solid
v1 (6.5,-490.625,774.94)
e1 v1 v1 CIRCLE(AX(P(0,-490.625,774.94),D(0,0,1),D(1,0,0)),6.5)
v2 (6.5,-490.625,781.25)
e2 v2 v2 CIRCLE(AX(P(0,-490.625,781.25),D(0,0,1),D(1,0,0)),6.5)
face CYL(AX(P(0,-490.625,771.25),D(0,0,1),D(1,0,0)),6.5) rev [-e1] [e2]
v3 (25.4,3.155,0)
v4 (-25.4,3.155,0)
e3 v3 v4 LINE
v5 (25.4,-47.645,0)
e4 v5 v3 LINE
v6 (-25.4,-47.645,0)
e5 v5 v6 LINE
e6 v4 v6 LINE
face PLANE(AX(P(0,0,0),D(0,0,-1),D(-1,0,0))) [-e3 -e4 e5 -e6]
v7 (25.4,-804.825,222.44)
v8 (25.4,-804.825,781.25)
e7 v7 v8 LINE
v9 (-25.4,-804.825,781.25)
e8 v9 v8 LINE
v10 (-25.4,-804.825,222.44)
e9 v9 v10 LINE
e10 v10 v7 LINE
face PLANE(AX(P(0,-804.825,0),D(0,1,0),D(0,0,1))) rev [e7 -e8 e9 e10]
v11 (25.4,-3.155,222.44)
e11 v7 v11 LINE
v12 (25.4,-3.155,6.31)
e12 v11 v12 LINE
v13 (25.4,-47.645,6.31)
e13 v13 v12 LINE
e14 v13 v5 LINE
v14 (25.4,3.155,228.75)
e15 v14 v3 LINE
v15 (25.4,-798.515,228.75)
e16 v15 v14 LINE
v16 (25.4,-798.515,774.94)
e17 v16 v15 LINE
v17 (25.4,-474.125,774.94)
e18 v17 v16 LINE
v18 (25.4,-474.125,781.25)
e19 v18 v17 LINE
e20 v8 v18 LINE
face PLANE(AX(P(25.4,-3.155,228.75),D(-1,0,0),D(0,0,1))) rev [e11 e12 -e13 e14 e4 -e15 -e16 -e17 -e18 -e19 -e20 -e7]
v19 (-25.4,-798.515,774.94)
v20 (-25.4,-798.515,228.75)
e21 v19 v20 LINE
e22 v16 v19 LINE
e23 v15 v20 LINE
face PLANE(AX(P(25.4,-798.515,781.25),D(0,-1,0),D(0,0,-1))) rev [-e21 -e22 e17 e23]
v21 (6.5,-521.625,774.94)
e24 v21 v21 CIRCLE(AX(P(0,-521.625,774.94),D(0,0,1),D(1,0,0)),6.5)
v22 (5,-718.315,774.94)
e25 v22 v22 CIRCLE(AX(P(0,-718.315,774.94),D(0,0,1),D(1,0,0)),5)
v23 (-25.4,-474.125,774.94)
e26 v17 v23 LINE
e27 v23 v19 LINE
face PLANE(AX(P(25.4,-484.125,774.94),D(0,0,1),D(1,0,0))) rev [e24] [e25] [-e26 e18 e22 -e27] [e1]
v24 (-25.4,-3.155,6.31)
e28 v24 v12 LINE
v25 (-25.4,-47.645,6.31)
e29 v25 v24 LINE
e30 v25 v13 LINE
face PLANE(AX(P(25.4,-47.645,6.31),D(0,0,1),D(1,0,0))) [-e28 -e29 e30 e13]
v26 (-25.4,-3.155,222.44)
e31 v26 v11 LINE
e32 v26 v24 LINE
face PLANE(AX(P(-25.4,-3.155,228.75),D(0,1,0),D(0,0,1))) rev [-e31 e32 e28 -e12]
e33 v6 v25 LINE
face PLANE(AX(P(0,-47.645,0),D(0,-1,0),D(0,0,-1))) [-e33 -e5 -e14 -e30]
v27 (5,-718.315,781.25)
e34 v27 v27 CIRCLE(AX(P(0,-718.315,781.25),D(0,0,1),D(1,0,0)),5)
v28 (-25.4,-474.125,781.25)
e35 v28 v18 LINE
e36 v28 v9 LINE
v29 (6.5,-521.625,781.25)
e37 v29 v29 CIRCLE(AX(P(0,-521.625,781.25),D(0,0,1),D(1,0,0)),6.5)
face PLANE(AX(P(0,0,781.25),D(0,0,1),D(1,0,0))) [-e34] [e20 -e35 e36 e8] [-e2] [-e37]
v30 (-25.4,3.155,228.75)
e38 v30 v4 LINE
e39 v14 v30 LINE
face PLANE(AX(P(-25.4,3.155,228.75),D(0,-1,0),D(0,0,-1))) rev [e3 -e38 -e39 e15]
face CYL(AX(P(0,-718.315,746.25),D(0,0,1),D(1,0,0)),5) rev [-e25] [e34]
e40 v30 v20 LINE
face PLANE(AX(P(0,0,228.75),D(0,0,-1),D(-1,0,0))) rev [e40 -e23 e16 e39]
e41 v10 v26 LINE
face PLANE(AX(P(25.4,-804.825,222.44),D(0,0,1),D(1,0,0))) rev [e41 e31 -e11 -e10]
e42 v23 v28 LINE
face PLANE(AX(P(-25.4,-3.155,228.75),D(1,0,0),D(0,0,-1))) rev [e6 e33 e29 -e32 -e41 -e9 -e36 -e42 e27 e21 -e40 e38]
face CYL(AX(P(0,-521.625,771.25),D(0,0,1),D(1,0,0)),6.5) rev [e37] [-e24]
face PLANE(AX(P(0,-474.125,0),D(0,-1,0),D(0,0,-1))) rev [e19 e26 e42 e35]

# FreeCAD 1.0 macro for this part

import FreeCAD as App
import Part
import Sketcher
from FreeCAD import Vector
Q = App.Units.Quantity

doc = App.newDocument("Part")
params = doc.addObject("Spreadsheet::Sheet", "Params")
for row, (alias, value) in enumerate([
    ("sketch1_width", "50.8 mm"),
    ("sketch1_height", "6.31 mm"),
    ("pad1_length", "228.75 mm"),
    ("sketch2_width", "50.8 mm"),
    ("sketch2_height", "6.31 mm"),
    ("pad2_length", "801.67 mm"),
    ("sketch3_width", "50.8 mm"),
    ("sketch3_height", "6.31 mm"),
    ("pad3_length", "552.5 mm"),
    ("sketch4_width", "50.8 mm"),
    ("sketch4_height", "6.31 mm"),
    ("pad4_length", "314.39 mm"),
    ("sketch5_width", "50.8 mm"),
    ("sketch5_height", "6.31 mm"),
    ("pad5_length", "10 mm"),
    ("sketch6_width", "50.8 mm"),
    ("sketch6_height", "6.31 mm"),
    ("pad6_length", "50.8 mm"),
    ("sketch7_diameter", "13 mm"),
    ("pocket1_length", "10 mm"),
    ("sketch8_diameter", "10 mm"),
    ("pocket2_length", "35 mm"),
], start=1):
    params.set(f"A{row}", alias)
    params.set(f"B{row}", "=" + value)
    params.setAlias(f"B{row}", alias)

body = doc.addObject("PartDesign::Body", "Body")

sketch1 = doc.addObject("Sketcher::SketchObject", "Sketch")
body.addObject(sketch1)
sketch1.AttachmentSupport = (doc.XY_Plane, [""])
sketch1.MapMode = "FlatFace"
sketch1.addGeometry(Part.LineSegment(Vector(-25, 3, 0), Vector(-25, -3, 0)), False)
sketch1.addGeometry(Part.LineSegment(Vector(-25, -3, 0), Vector(25, -3, 0)), False)
sketch1.addGeometry(Part.LineSegment(Vector(25, -3, 0), Vector(25, 3, 0)), False)
sketch1.addGeometry(Part.LineSegment(Vector(25, 3, 0), Vector(-25, 3, 0)), False)
sketch1.addConstraint(Sketcher.Constraint("Coincident", 0, 2, 1, 1))
sketch1.addConstraint(Sketcher.Constraint("Coincident", 1, 2, 2, 1))
sketch1.addConstraint(Sketcher.Constraint("Coincident", 2, 2, 3, 1))
sketch1.addConstraint(Sketcher.Constraint("Coincident", 3, 2, 0, 1))
sketch1.addConstraint(Sketcher.Constraint("Vertical", 0))
sketch1.addConstraint(Sketcher.Constraint("Horizontal", 1))
sketch1.addConstraint(Sketcher.Constraint("Vertical", 2))
sketch1.addConstraint(Sketcher.Constraint("Horizontal", 3))
sketch1.addConstraint(Sketcher.Constraint("Symmetric", 0, 2, 2, 2, -1, 1))
sketch1.addConstraint(Sketcher.Constraint("DistanceX", 1, 1, 1, 2, Q("50.8 mm")))
sketch1.addConstraint(Sketcher.Constraint("DistanceY", 0, 2, 0, 1, Q("6.31 mm")))
sketch1.setExpression("Constraints[9]", "Params.sketch1_width")
sketch1.setExpression("Constraints[10]", "Params.sketch1_height")
pad1 = doc.addObject("PartDesign::Pad", "Pad")
body.addObject(pad1)
pad1.Profile = sketch1
pad1.setExpression("Length", "Params.pad1_length")

sketch2 = doc.addObject("Sketcher::SketchObject", "Sketch001")
body.addObject(sketch2)
sketch2.AttachmentSupport = (doc.XZ_Plane, [""])
sketch2.MapMode = "FlatFace"
sketch2.AttachmentOffset = App.Placement(Vector(0, 0, 3.155), App.Rotation())
sketch2.addGeometry(Part.LineSegment(Vector(-25, 229, 0), Vector(-25, 222, 0)), False)
sketch2.addGeometry(Part.LineSegment(Vector(-25, 222, 0), Vector(25, 222, 0)), False)
sketch2.addGeometry(Part.LineSegment(Vector(25, 222, 0), Vector(25, 229, 0)), False)
sketch2.addGeometry(Part.LineSegment(Vector(25, 229, 0), Vector(-25, 229, 0)), False)
sketch2.addConstraint(Sketcher.Constraint("Coincident", 0, 2, 1, 1))
sketch2.addConstraint(Sketcher.Constraint("Coincident", 1, 2, 2, 1))
sketch2.addConstraint(Sketcher.Constraint("Coincident", 2, 2, 3, 1))
sketch2.addConstraint(Sketcher.Constraint("Coincident", 3, 2, 0, 1))
sketch2.addConstraint(Sketcher.Constraint("Vertical", 0))
sketch2.addConstraint(Sketcher.Constraint("Horizontal", 1))
sketch2.addConstraint(Sketcher.Constraint("Vertical", 2))
sketch2.addConstraint(Sketcher.Constraint("Horizontal", 3))
sketch2.addConstraint(Sketcher.Constraint("DistanceX", 1, 1, 1, 2, Q("50.8 mm")))
sketch2.addConstraint(Sketcher.Constraint("DistanceY", 0, 2, 0, 1, Q("6.31 mm")))
sketch2.addConstraint(Sketcher.Constraint("DistanceX", 0, 2, -1, 1, Q("25.4 mm")))
sketch2.addConstraint(Sketcher.Constraint("DistanceY", -1, 1, 0, 2, Q("222.44 mm")))
sketch2.setExpression("Constraints[8]", "Params.sketch2_width")
sketch2.setExpression("Constraints[9]", "Params.sketch2_height")
pad2 = doc.addObject("PartDesign::Pad", "Pad001")
body.addObject(pad2)
pad2.Profile = sketch2
pad2.setExpression("Length", "Params.pad2_length")

sketch3 = doc.addObject("Sketcher::SketchObject", "Sketch002")
body.addObject(sketch3)
sketch3.AttachmentSupport = (doc.XY_Plane, [""])
sketch3.MapMode = "FlatFace"
sketch3.AttachmentOffset = App.Placement(Vector(0, 0, 228.75), App.Rotation())
sketch3.addGeometry(Part.LineSegment(Vector(-25, -799, 0), Vector(-25, -805, 0)), False)
sketch3.addGeometry(Part.LineSegment(Vector(-25, -805, 0), Vector(25, -805, 0)), False)
sketch3.addGeometry(Part.LineSegment(Vector(25, -805, 0), Vector(25, -799, 0)), False)
sketch3.addGeometry(Part.LineSegment(Vector(25, -799, 0), Vector(-25, -799, 0)), False)
sketch3.addConstraint(Sketcher.Constraint("Coincident", 0, 2, 1, 1))
sketch3.addConstraint(Sketcher.Constraint("Coincident", 1, 2, 2, 1))
sketch3.addConstraint(Sketcher.Constraint("Coincident", 2, 2, 3, 1))
sketch3.addConstraint(Sketcher.Constraint("Coincident", 3, 2, 0, 1))
sketch3.addConstraint(Sketcher.Constraint("Vertical", 0))
sketch3.addConstraint(Sketcher.Constraint("Horizontal", 1))
sketch3.addConstraint(Sketcher.Constraint("Vertical", 2))
sketch3.addConstraint(Sketcher.Constraint("Horizontal", 3))
sketch3.addConstraint(Sketcher.Constraint("DistanceX", 1, 1, 1, 2, Q("50.8 mm")))
sketch3.addConstraint(Sketcher.Constraint("DistanceY", 0, 2, 0, 1, Q("6.31 mm")))
sketch3.addConstraint(Sketcher.Constraint("DistanceX", 0, 2, -1, 1, Q("25.4 mm")))
sketch3.addConstraint(Sketcher.Constraint("DistanceY", 0, 2, -1, 1, Q("804.825 mm")))
sketch3.setExpression("Constraints[8]", "Params.sketch3_width")
sketch3.setExpression("Constraints[9]", "Params.sketch3_height")
pad3 = doc.addObject("PartDesign::Pad", "Pad002")
body.addObject(pad3)
pad3.Profile = sketch3
pad3.setExpression("Length", "Params.pad3_length")

sketch4 = doc.addObject("Sketcher::SketchObject", "Sketch003")
body.addObject(sketch4)
sketch4.AttachmentSupport = (doc.XZ_Plane, [""])
sketch4.MapMode = "FlatFace"
sketch4.AttachmentOffset = App.Placement(Vector(0, 0, 798.515), App.Rotation())
sketch4.addGeometry(Part.LineSegment(Vector(-25, 775, 0), Vector(-25, 781, 0)), False)
sketch4.addGeometry(Part.LineSegment(Vector(-25, 781, 0), Vector(25, 781, 0)), False)
sketch4.addGeometry(Part.LineSegment(Vector(25, 781, 0), Vector(25, 775, 0)), False)
sketch4.addGeometry(Part.LineSegment(Vector(25, 775, 0), Vector(-25, 775, 0)), False)
sketch4.addConstraint(Sketcher.Constraint("Coincident", 0, 2, 1, 1))
sketch4.addConstraint(Sketcher.Constraint("Coincident", 1, 2, 2, 1))
sketch4.addConstraint(Sketcher.Constraint("Coincident", 2, 2, 3, 1))
sketch4.addConstraint(Sketcher.Constraint("Coincident", 3, 2, 0, 1))
sketch4.addConstraint(Sketcher.Constraint("Vertical", 0))
sketch4.addConstraint(Sketcher.Constraint("Horizontal", 1))
sketch4.addConstraint(Sketcher.Constraint("Vertical", 2))
sketch4.addConstraint(Sketcher.Constraint("Horizontal", 3))
sketch4.addConstraint(Sketcher.Constraint("DistanceX", 1, 1, 1, 2, Q("50.8 mm")))
sketch4.addConstraint(Sketcher.Constraint("DistanceY", 0, 1, 0, 2, Q("6.31 mm")))
sketch4.addConstraint(Sketcher.Constraint("DistanceX", 0, 2, -1, 1, Q("25.4 mm")))
sketch4.addConstraint(Sketcher.Constraint("DistanceY", -1, 1, 0, 2, Q("781.25 mm")))
sketch4.setExpression("Constraints[8]", "Params.sketch4_width")
sketch4.setExpression("Constraints[9]", "Params.sketch4_height")
pad4 = doc.addObject("PartDesign::Pad", "Pad003")
body.addObject(pad4)
pad4.Profile = sketch4
pad4.setExpression("Length", "Params.pad4_length")
pad4.Reversed = True

sketch5 = doc.addObject("Sketcher::SketchObject", "Sketch004")
body.addObject(sketch5)
sketch5.AttachmentSupport = (doc.XZ_Plane, [""])
sketch5.MapMode = "FlatFace"
sketch5.AttachmentOffset = App.Placement(Vector(0, 0, 484.125), App.Rotation())
sketch5.addGeometry(Part.LineSegment(Vector(-25, 775, 0), Vector(-25, 781, 0)), False)
sketch5.addGeometry(Part.LineSegment(Vector(-25, 781, 0), Vector(25, 781, 0)), False)
sketch5.addGeometry(Part.LineSegment(Vector(25, 781, 0), Vector(25, 775, 0)), False)
sketch5.addGeometry(Part.LineSegment(Vector(25, 775, 0), Vector(-25, 775, 0)), False)
sketch5.addConstraint(Sketcher.Constraint("Coincident", 0, 2, 1, 1))
sketch5.addConstraint(Sketcher.Constraint("Coincident", 1, 2, 2, 1))
sketch5.addConstraint(Sketcher.Constraint("Coincident", 2, 2, 3, 1))
sketch5.addConstraint(Sketcher.Constraint("Coincident", 3, 2, 0, 1))
sketch5.addConstraint(Sketcher.Constraint("Vertical", 0))
sketch5.addConstraint(Sketcher.Constraint("Horizontal", 1))
sketch5.addConstraint(Sketcher.Constraint("Vertical", 2))
sketch5.addConstraint(Sketcher.Constraint("Horizontal", 3))
sketch5.addConstraint(Sketcher.Constraint("DistanceX", 1, 1, 1, 2, Q("50.8 mm")))
sketch5.addConstraint(Sketcher.Constraint("DistanceY", 0, 1, 0, 2, Q("6.31 mm")))
sketch5.addConstraint(Sketcher.Constraint("DistanceX", 0, 2, -1, 1, Q("25.4 mm")))
sketch5.addConstraint(Sketcher.Constraint("DistanceY", -1, 1, 0, 2, Q("781.25 mm")))
sketch5.setExpression("Constraints[8]", "Params.sketch5_width")
sketch5.setExpression("Constraints[9]", "Params.sketch5_height")
pad5 = doc.addObject("PartDesign::Pad", "Pad004")
body.addObject(pad5)
pad5.Profile = sketch5
pad5.setExpression("Length", "Params.pad5_length")
pad5.Reversed = True

sketch6 = doc.addObject("Sketcher::SketchObject", "Sketch005")
body.addObject(sketch6)
sketch6.AttachmentSupport = (doc.XZ_Plane, [""])
sketch6.MapMode = "FlatFace"
sketch6.AttachmentOffset = App.Placement(Vector(0, 0, -3.155), App.Rotation())
sketch6.addGeometry(Part.LineSegment(Vector(-25, 0, 0), Vector(-25, 6, 0)), False)
sketch6.addGeometry(Part.LineSegment(Vector(-25, 6, 0), Vector(25, 6, 0)), False)
sketch6.addGeometry(Part.LineSegment(Vector(25, 6, 0), Vector(25, 0, 0)), False)
sketch6.addGeometry(Part.LineSegment(Vector(25, 0, 0), Vector(-25, 0, 0)), False)
sketch6.addConstraint(Sketcher.Constraint("Coincident", 0, 2, 1, 1))
sketch6.addConstraint(Sketcher.Constraint("Coincident", 1, 2, 2, 1))
sketch6.addConstraint(Sketcher.Constraint("Coincident", 2, 2, 3, 1))
sketch6.addConstraint(Sketcher.Constraint("Coincident", 3, 2, 0, 1))
sketch6.addConstraint(Sketcher.Constraint("Vertical", 0))
sketch6.addConstraint(Sketcher.Constraint("Horizontal", 1))
sketch6.addConstraint(Sketcher.Constraint("Vertical", 2))
sketch6.addConstraint(Sketcher.Constraint("Horizontal", 3))
sketch6.addConstraint(Sketcher.Constraint("Symmetric", 2, 2, 3, 2, -1, 1))
sketch6.addConstraint(Sketcher.Constraint("DistanceX", 1, 1, 1, 2, Q("50.8 mm")))
sketch6.addConstraint(Sketcher.Constraint("DistanceY", 0, 1, 0, 2, Q("6.31 mm")))
sketch6.setExpression("Constraints[9]", "Params.sketch6_width")
sketch6.setExpression("Constraints[10]", "Params.sketch6_height")
pad6 = doc.addObject("PartDesign::Pad", "Pad005")
body.addObject(pad6)
pad6.Profile = sketch6
pad6.setExpression("Length", "Params.pad6_length")

sketch7 = doc.addObject("Sketcher::SketchObject", "Sketch006")
body.addObject(sketch7)
sketch7.AttachmentSupport = (doc.XY_Plane, [""])
sketch7.MapMode = "FlatFace"
sketch7.AttachmentOffset = App.Placement(Vector(0, 0, 781.25), App.Rotation())
sketch7.addGeometry(Part.Circle(Vector(0, -522, 0), Vector(0, 0, 1), 6), False)
sketch7.addGeometry(Part.Circle(Vector(0, -491, 0), Vector(0, 0, 1), 6), False)
sketch7.addConstraint(Sketcher.Constraint("Equal", 0, 1))
sketch7.addConstraint(Sketcher.Constraint("PointOnObject", 0, 3, -2))
sketch7.addConstraint(Sketcher.Constraint("PointOnObject", 1, 3, -2))
sketch7.addConstraint(Sketcher.Constraint("Diameter", 0, Q("13 mm")))
sketch7.addConstraint(Sketcher.Constraint("DistanceY", 0, 3, 1, 3, Q("31 mm")))
sketch7.addConstraint(Sketcher.Constraint("DistanceY", 0, 3, -1, 1, Q("521.625 mm")))
sketch7.setExpression("Constraints[3]", "Params.sketch7_diameter")
pocket1 = doc.addObject("PartDesign::Pocket", "Pocket")
body.addObject(pocket1)
pocket1.Profile = sketch7
pocket1.setExpression("Length", "Params.pocket1_length")

sketch8 = doc.addObject("Sketcher::SketchObject", "Sketch007")
body.addObject(sketch8)
sketch8.AttachmentSupport = (doc.XY_Plane, [""])
sketch8.MapMode = "FlatFace"
sketch8.AttachmentOffset = App.Placement(Vector(0, 0, 781.25), App.Rotation())
sketch8.addGeometry(Part.Circle(Vector(0, -718, 0), Vector(0, 0, 1), 5), False)
sketch8.addConstraint(Sketcher.Constraint("PointOnObject", 0, 3, -2))
sketch8.addConstraint(Sketcher.Constraint("Diameter", 0, Q("10 mm")))
sketch8.addConstraint(Sketcher.Constraint("DistanceY", 0, 3, -1, 1, Q("718.315 mm")))
sketch8.setExpression("Constraints[1]", "Params.sketch8_diameter")
pocket2 = doc.addObject("PartDesign::Pocket", "Pocket001")
body.addObject(pocket2)
pocket2.Profile = sketch8
pocket2.setExpression("Length", "Params.pocket2_length")

doc.recompute()
